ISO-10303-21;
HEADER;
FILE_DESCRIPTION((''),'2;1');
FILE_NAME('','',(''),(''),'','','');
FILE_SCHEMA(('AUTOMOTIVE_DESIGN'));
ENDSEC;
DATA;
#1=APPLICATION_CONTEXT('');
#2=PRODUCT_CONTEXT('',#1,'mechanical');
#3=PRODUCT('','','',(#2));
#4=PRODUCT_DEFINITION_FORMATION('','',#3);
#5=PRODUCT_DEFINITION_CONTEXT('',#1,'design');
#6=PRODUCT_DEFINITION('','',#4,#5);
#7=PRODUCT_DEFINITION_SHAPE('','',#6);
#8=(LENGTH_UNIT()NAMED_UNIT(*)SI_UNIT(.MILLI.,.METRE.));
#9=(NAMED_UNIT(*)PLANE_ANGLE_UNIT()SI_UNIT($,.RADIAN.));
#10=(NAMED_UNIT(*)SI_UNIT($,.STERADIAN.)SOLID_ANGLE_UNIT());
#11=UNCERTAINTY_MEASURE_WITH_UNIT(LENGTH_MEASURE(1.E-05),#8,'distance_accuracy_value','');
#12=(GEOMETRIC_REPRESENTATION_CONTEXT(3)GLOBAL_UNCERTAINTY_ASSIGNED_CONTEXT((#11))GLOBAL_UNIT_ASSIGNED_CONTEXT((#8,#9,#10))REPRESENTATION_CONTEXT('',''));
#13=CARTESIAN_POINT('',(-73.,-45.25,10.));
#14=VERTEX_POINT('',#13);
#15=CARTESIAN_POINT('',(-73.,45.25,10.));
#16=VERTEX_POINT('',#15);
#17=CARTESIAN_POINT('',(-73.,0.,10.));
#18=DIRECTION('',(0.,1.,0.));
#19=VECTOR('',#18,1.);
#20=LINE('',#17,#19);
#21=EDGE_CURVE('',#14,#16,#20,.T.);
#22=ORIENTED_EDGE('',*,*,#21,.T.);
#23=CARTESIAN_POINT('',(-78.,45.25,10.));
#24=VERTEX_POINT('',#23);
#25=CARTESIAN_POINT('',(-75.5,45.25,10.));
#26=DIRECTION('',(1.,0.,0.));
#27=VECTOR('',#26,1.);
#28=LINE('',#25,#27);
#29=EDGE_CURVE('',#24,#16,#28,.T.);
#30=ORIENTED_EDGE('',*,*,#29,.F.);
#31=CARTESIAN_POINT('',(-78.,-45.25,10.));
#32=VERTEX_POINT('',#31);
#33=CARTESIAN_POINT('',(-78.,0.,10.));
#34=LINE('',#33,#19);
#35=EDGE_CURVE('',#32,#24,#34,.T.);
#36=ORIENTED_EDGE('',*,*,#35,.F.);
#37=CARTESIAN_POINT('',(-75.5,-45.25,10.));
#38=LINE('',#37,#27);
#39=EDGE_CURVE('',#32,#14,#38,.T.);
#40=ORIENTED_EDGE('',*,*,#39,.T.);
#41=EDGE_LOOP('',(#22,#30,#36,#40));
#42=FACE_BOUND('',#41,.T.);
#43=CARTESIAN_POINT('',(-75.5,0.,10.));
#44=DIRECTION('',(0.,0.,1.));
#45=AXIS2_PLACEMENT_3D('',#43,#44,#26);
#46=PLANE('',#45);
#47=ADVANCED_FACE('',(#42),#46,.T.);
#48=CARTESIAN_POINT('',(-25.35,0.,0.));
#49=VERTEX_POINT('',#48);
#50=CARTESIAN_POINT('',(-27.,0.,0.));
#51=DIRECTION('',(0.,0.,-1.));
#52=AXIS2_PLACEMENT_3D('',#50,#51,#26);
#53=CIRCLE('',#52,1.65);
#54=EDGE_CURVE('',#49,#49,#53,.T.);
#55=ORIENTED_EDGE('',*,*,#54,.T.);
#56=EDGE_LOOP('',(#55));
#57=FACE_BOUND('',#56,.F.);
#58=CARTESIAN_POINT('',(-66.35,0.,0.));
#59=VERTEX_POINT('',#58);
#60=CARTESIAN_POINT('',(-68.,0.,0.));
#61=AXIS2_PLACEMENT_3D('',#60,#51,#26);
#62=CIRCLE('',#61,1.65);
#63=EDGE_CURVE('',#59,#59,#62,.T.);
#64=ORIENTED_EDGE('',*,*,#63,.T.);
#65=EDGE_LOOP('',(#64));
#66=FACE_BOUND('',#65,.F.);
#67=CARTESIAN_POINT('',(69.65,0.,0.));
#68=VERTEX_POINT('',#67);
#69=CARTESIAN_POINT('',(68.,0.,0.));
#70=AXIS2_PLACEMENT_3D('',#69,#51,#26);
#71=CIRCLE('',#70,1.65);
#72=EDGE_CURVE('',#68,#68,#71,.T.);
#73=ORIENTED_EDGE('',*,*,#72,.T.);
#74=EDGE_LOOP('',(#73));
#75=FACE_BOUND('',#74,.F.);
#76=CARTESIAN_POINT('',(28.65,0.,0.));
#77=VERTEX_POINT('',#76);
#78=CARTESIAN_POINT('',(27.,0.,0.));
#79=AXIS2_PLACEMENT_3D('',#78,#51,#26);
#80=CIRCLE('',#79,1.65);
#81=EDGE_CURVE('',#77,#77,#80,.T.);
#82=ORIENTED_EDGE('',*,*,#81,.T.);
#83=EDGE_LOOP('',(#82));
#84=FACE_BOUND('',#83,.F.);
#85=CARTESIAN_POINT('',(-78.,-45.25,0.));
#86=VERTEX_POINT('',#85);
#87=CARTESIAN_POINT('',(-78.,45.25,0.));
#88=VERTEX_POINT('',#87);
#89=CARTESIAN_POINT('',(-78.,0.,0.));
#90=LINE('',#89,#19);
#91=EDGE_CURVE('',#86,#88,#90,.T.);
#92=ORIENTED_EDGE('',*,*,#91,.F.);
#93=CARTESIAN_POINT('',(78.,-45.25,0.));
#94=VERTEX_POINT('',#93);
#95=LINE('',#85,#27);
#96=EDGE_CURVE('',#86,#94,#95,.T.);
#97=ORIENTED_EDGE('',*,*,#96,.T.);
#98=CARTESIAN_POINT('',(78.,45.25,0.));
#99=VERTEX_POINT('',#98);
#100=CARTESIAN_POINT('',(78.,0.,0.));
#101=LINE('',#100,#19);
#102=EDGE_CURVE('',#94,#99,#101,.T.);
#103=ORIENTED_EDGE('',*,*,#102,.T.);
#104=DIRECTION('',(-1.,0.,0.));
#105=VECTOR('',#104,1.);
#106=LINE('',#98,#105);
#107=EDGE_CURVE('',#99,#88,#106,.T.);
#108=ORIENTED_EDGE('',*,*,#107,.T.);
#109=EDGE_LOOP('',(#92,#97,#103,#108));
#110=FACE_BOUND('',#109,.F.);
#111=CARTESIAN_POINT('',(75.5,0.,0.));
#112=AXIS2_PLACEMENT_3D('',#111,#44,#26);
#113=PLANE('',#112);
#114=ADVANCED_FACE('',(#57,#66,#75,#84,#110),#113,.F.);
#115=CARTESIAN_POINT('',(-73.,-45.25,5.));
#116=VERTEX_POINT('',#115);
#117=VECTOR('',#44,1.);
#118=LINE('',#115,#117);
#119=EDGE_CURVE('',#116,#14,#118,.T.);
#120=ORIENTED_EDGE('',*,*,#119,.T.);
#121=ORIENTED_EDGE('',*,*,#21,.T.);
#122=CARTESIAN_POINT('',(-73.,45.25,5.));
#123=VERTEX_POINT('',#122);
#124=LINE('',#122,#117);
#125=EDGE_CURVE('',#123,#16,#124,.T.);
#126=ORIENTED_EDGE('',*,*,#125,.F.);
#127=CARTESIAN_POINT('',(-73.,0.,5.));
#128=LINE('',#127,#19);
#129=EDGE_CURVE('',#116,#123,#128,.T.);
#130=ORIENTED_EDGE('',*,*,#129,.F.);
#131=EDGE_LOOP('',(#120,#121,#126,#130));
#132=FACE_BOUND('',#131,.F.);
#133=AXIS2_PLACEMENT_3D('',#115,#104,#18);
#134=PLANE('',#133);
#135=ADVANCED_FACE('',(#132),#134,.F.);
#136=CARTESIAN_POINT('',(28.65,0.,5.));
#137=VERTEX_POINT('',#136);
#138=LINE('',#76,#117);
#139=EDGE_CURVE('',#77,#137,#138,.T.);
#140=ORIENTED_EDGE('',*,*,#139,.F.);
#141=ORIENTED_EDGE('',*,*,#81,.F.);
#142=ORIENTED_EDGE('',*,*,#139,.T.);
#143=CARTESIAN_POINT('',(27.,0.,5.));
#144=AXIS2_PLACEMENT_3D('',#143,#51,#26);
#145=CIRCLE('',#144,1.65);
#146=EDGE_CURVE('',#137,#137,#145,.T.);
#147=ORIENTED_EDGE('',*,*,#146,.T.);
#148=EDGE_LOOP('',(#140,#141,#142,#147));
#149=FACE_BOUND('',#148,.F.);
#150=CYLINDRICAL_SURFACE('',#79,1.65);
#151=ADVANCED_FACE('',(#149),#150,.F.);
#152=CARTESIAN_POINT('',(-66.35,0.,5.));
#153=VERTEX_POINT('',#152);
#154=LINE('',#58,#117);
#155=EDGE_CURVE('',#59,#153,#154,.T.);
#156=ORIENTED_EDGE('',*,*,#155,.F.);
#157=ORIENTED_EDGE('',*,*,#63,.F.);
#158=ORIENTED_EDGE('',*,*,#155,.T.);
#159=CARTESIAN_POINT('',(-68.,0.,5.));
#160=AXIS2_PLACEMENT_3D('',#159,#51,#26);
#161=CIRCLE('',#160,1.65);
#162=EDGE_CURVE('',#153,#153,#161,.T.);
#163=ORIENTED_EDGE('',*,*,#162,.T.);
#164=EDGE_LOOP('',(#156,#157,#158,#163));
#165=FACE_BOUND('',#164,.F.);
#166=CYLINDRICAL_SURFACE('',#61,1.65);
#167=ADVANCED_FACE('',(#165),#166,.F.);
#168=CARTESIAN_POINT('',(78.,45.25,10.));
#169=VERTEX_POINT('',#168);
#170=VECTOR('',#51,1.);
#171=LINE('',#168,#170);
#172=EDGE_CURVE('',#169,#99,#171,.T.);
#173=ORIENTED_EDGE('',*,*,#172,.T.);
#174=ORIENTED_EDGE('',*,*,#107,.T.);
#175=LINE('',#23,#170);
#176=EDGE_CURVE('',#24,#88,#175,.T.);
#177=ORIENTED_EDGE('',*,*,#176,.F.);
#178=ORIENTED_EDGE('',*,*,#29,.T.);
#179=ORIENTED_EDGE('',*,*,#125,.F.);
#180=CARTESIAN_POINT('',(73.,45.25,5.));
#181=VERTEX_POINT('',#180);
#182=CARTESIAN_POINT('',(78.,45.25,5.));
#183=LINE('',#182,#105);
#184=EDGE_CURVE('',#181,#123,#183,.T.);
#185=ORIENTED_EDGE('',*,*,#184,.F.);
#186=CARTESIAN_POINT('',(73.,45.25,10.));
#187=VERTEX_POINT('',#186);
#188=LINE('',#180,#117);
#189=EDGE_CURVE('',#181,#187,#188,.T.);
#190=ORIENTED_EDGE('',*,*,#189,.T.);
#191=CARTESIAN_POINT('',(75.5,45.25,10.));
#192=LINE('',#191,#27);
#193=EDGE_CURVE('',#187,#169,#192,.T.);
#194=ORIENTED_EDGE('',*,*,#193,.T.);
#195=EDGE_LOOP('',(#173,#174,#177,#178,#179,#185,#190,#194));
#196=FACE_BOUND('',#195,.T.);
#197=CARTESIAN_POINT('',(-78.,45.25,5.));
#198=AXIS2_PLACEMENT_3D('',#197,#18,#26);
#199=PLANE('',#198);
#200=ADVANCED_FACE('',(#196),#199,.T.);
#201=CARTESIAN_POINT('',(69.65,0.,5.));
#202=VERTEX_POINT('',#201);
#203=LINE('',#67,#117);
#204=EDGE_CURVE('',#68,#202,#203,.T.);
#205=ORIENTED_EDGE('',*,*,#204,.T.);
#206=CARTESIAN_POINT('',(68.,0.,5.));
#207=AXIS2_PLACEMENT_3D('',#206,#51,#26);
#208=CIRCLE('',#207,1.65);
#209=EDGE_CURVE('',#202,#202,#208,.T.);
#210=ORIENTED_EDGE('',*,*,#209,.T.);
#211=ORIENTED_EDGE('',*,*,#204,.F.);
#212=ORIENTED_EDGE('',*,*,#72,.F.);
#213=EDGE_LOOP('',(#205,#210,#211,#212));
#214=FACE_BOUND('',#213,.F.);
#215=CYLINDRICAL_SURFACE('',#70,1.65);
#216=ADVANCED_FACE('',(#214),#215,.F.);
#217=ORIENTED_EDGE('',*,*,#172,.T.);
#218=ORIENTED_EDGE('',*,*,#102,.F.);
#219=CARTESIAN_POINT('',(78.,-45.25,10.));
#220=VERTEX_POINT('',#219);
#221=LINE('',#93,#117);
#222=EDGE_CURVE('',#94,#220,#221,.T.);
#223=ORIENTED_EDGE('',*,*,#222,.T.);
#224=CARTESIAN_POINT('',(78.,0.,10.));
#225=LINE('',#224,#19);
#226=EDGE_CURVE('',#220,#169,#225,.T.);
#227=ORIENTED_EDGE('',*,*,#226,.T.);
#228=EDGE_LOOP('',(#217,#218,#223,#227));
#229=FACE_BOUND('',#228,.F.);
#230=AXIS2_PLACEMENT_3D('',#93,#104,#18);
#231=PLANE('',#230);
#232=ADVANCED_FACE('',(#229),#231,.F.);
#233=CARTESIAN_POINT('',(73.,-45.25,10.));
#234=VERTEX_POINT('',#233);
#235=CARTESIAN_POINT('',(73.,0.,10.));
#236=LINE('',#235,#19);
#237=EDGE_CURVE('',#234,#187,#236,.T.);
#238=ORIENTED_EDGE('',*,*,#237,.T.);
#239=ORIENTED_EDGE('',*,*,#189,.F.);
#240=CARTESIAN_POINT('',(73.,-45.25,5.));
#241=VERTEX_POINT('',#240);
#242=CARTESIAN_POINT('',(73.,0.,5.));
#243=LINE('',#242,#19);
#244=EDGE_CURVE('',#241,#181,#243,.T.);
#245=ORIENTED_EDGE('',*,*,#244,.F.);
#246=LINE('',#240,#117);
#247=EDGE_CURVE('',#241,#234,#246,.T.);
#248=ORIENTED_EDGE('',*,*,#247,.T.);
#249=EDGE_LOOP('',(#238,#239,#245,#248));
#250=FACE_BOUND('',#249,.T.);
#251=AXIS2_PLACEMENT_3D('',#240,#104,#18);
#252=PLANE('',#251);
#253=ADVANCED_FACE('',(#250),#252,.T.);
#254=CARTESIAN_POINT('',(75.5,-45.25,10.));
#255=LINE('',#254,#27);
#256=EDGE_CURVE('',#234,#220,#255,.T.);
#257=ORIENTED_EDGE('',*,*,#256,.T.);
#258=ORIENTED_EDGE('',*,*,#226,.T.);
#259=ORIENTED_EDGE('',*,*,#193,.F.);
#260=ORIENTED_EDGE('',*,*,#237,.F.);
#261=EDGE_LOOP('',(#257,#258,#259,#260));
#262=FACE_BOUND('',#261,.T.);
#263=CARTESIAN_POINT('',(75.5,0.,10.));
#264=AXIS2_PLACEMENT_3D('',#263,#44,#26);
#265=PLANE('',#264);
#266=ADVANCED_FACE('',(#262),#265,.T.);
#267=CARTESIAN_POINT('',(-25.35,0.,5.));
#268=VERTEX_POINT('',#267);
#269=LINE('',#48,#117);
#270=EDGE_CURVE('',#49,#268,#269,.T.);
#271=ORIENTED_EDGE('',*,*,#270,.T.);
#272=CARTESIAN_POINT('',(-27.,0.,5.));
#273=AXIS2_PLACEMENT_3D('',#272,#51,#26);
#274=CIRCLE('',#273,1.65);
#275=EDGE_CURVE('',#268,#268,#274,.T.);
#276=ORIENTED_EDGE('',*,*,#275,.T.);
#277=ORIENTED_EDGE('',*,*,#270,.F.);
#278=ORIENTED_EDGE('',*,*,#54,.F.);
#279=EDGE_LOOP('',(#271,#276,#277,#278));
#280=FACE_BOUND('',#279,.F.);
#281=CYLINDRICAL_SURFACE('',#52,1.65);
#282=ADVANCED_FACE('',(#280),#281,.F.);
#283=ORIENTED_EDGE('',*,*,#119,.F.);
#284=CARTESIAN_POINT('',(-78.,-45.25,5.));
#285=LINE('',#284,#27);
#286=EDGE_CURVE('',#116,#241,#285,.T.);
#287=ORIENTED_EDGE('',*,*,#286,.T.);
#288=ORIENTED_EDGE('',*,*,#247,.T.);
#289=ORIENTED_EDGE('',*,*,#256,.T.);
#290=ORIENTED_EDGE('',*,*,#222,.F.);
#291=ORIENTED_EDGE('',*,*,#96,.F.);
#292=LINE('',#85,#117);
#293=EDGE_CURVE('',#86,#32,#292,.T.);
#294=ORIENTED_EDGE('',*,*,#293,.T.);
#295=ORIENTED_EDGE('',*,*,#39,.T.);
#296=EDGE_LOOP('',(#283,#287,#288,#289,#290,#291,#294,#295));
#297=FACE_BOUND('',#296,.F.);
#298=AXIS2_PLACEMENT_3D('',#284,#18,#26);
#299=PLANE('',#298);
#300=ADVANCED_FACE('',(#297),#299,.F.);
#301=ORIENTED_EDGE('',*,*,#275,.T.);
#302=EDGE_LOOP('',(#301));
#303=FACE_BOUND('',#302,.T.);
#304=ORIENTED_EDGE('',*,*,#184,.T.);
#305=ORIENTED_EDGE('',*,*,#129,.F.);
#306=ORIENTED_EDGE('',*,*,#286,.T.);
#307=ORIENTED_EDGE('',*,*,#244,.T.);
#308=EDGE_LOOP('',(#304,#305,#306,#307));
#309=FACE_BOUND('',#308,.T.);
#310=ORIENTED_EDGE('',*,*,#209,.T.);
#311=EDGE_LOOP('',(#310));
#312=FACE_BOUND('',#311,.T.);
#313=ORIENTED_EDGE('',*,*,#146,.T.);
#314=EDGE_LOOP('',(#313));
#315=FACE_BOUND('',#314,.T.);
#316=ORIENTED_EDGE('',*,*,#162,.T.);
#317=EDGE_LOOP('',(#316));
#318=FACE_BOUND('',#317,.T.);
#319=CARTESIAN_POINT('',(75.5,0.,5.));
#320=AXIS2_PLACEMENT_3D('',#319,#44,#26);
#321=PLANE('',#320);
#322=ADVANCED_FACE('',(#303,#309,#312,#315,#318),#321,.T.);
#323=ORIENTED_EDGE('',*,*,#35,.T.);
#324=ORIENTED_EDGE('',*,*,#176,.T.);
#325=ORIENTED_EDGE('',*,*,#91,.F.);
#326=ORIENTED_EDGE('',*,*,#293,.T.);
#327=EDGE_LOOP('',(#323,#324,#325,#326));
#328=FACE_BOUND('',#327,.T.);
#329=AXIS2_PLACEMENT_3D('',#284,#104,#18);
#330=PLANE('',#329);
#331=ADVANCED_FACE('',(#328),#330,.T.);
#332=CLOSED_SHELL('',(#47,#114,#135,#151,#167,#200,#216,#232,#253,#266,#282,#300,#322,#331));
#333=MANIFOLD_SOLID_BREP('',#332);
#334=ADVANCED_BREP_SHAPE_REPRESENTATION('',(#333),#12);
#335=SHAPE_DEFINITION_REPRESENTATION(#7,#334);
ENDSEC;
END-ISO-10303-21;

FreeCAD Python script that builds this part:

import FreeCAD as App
import Part
import Sketcher
from FreeCAD import Vector


def add_polygon(sketch, points):
    """Adds a closed chain of lines whose ends are joined by coincident constraints."""
    first, n = sketch.GeometryCount, len(points)
    for a, b in zip(points, points[1:] + points[:1]):
        sketch.addGeometry(Part.LineSegment(App.Vector(*a, 0), App.Vector(*b, 0)), False)
    for i in range(n):
        sketch.addConstraint(Sketcher.Constraint("Coincident", first + i, 2, first + (i + 1) % n, 1))

doc = App.newDocument("Part")
body = doc.addObject("PartDesign::Body", "Body")

# Sketch on XY plane
sketch1 = body.newObject("Sketcher::SketchObject", "Sketch")
sketch1.AttachmentSupport = (doc.getObject("XY_Plane"), [""])
sketch1.MapMode = "FlatFace"
add_polygon(sketch1, [(78, -45.25), (78, 45.25), (-78, 45.25), (-78, -45.25)])  # lines 0-3
sketch1.addConstraint([
    Sketcher.Constraint("Vertical", 0),
    Sketcher.Constraint("Horizontal", 1),
    Sketcher.Constraint("Vertical", 2),
    Sketcher.Constraint("Horizontal", 3),
    Sketcher.Constraint("Symmetric", 0, 2, 2, 2, -1, 1),
    Sketcher.Constraint("DistanceX", 1, 2, 1, 1, 156.0),
    Sketcher.Constraint("DistanceY", 0, 1, 0, 2, 90.5),
])
pad1 = body.newObject("PartDesign::Pad", "Pad")
pad1.Profile = sketch1
pad1.Length = 5

# Sketch on XY plane
sketch2 = body.newObject("Sketcher::SketchObject", "Sketch001")
sketch2.AttachmentSupport = (doc.getObject("XY_Plane"), [""])
sketch2.MapMode = "FlatFace"
sketch2.AttachmentOffset = App.Placement(Vector(0, 0, 5), App.Rotation())
add_polygon(sketch2, [(-78, 45.25), (-78, -45.25), (-73, -45.25), (-73, 45.25)])  # lines 0-3
add_polygon(sketch2, [(73, 45.25), (73, -45.25), (78, -45.25), (78, 45.25)])  # lines 4-7
sketch2.addConstraint([
    Sketcher.Constraint("Vertical", 0),
    Sketcher.Constraint("Horizontal", 1),
    Sketcher.Constraint("Vertical", 2),
    Sketcher.Constraint("Horizontal", 3),
    Sketcher.Constraint("Vertical", 4),
    Sketcher.Constraint("Horizontal", 5),
    Sketcher.Constraint("Vertical", 6),
    Sketcher.Constraint("Horizontal", 7),
    Sketcher.Constraint("Symmetric", 2, 2, 4, 2, -1, 1),
    Sketcher.Constraint("Symmetric", 0, 2, 6, 2, -1, 1),
    Sketcher.Constraint("Horizontal", 1, 2, 4, 2),
    Sketcher.Constraint("DistanceX", 1, 1, 1, 2, 5.0),
    Sketcher.Constraint("DistanceY", 0, 2, 0, 1, 90.5),
    Sketcher.Constraint("DistanceX", 0, 2, -1, 1, 78.0),
])
pad2 = body.newObject("PartDesign::Pad", "Pad001")
pad2.Profile = sketch2
pad2.Length = 5

# Sketch on XY plane
sketch3 = body.newObject("Sketcher::SketchObject", "Sketch002")
sketch3.AttachmentSupport = (doc.getObject("XY_Plane"), [""])
sketch3.MapMode = "FlatFace"
sketch3.addGeometry([
    Part.Circle(Vector(-68, 0, 0), Vector(0, 0, 1), 1.65),
    Part.Circle(Vector(-27, 0, 0), Vector(0, 0, 1), 1.65),
    Part.Circle(Vector(27, 0, 0), Vector(0, 0, 1), 1.65),
    Part.Circle(Vector(68, 0, 0), Vector(0, 0, 1), 1.65),
], False)
sketch3.addConstraint([
    Sketcher.Constraint("Equal", 0, 1),
    Sketcher.Constraint("Equal", 1, 2),
    Sketcher.Constraint("Equal", 2, 3),
    Sketcher.Constraint("Symmetric", 1, 3, 2, 3, -1, 1),
    Sketcher.Constraint("Symmetric", 0, 3, 3, 3, -1, 1),
    Sketcher.Constraint("PointOnObject", 0, 3, -1),
    Sketcher.Constraint("PointOnObject", 1, 3, -1),
    Sketcher.Constraint("Diameter", 0, 3.3),
    Sketcher.Constraint("DistanceX", 0, 3, -1, 1, 68.0),
    Sketcher.Constraint("DistanceX", 1, 3, -1, 1, 27.0),
])
pocket1 = body.newObject("PartDesign::Pocket", "Pocket")
pocket1.Profile = sketch3
pocket1.Type = "ThroughAll"
pocket1.Reversed = True

doc.recompute()
